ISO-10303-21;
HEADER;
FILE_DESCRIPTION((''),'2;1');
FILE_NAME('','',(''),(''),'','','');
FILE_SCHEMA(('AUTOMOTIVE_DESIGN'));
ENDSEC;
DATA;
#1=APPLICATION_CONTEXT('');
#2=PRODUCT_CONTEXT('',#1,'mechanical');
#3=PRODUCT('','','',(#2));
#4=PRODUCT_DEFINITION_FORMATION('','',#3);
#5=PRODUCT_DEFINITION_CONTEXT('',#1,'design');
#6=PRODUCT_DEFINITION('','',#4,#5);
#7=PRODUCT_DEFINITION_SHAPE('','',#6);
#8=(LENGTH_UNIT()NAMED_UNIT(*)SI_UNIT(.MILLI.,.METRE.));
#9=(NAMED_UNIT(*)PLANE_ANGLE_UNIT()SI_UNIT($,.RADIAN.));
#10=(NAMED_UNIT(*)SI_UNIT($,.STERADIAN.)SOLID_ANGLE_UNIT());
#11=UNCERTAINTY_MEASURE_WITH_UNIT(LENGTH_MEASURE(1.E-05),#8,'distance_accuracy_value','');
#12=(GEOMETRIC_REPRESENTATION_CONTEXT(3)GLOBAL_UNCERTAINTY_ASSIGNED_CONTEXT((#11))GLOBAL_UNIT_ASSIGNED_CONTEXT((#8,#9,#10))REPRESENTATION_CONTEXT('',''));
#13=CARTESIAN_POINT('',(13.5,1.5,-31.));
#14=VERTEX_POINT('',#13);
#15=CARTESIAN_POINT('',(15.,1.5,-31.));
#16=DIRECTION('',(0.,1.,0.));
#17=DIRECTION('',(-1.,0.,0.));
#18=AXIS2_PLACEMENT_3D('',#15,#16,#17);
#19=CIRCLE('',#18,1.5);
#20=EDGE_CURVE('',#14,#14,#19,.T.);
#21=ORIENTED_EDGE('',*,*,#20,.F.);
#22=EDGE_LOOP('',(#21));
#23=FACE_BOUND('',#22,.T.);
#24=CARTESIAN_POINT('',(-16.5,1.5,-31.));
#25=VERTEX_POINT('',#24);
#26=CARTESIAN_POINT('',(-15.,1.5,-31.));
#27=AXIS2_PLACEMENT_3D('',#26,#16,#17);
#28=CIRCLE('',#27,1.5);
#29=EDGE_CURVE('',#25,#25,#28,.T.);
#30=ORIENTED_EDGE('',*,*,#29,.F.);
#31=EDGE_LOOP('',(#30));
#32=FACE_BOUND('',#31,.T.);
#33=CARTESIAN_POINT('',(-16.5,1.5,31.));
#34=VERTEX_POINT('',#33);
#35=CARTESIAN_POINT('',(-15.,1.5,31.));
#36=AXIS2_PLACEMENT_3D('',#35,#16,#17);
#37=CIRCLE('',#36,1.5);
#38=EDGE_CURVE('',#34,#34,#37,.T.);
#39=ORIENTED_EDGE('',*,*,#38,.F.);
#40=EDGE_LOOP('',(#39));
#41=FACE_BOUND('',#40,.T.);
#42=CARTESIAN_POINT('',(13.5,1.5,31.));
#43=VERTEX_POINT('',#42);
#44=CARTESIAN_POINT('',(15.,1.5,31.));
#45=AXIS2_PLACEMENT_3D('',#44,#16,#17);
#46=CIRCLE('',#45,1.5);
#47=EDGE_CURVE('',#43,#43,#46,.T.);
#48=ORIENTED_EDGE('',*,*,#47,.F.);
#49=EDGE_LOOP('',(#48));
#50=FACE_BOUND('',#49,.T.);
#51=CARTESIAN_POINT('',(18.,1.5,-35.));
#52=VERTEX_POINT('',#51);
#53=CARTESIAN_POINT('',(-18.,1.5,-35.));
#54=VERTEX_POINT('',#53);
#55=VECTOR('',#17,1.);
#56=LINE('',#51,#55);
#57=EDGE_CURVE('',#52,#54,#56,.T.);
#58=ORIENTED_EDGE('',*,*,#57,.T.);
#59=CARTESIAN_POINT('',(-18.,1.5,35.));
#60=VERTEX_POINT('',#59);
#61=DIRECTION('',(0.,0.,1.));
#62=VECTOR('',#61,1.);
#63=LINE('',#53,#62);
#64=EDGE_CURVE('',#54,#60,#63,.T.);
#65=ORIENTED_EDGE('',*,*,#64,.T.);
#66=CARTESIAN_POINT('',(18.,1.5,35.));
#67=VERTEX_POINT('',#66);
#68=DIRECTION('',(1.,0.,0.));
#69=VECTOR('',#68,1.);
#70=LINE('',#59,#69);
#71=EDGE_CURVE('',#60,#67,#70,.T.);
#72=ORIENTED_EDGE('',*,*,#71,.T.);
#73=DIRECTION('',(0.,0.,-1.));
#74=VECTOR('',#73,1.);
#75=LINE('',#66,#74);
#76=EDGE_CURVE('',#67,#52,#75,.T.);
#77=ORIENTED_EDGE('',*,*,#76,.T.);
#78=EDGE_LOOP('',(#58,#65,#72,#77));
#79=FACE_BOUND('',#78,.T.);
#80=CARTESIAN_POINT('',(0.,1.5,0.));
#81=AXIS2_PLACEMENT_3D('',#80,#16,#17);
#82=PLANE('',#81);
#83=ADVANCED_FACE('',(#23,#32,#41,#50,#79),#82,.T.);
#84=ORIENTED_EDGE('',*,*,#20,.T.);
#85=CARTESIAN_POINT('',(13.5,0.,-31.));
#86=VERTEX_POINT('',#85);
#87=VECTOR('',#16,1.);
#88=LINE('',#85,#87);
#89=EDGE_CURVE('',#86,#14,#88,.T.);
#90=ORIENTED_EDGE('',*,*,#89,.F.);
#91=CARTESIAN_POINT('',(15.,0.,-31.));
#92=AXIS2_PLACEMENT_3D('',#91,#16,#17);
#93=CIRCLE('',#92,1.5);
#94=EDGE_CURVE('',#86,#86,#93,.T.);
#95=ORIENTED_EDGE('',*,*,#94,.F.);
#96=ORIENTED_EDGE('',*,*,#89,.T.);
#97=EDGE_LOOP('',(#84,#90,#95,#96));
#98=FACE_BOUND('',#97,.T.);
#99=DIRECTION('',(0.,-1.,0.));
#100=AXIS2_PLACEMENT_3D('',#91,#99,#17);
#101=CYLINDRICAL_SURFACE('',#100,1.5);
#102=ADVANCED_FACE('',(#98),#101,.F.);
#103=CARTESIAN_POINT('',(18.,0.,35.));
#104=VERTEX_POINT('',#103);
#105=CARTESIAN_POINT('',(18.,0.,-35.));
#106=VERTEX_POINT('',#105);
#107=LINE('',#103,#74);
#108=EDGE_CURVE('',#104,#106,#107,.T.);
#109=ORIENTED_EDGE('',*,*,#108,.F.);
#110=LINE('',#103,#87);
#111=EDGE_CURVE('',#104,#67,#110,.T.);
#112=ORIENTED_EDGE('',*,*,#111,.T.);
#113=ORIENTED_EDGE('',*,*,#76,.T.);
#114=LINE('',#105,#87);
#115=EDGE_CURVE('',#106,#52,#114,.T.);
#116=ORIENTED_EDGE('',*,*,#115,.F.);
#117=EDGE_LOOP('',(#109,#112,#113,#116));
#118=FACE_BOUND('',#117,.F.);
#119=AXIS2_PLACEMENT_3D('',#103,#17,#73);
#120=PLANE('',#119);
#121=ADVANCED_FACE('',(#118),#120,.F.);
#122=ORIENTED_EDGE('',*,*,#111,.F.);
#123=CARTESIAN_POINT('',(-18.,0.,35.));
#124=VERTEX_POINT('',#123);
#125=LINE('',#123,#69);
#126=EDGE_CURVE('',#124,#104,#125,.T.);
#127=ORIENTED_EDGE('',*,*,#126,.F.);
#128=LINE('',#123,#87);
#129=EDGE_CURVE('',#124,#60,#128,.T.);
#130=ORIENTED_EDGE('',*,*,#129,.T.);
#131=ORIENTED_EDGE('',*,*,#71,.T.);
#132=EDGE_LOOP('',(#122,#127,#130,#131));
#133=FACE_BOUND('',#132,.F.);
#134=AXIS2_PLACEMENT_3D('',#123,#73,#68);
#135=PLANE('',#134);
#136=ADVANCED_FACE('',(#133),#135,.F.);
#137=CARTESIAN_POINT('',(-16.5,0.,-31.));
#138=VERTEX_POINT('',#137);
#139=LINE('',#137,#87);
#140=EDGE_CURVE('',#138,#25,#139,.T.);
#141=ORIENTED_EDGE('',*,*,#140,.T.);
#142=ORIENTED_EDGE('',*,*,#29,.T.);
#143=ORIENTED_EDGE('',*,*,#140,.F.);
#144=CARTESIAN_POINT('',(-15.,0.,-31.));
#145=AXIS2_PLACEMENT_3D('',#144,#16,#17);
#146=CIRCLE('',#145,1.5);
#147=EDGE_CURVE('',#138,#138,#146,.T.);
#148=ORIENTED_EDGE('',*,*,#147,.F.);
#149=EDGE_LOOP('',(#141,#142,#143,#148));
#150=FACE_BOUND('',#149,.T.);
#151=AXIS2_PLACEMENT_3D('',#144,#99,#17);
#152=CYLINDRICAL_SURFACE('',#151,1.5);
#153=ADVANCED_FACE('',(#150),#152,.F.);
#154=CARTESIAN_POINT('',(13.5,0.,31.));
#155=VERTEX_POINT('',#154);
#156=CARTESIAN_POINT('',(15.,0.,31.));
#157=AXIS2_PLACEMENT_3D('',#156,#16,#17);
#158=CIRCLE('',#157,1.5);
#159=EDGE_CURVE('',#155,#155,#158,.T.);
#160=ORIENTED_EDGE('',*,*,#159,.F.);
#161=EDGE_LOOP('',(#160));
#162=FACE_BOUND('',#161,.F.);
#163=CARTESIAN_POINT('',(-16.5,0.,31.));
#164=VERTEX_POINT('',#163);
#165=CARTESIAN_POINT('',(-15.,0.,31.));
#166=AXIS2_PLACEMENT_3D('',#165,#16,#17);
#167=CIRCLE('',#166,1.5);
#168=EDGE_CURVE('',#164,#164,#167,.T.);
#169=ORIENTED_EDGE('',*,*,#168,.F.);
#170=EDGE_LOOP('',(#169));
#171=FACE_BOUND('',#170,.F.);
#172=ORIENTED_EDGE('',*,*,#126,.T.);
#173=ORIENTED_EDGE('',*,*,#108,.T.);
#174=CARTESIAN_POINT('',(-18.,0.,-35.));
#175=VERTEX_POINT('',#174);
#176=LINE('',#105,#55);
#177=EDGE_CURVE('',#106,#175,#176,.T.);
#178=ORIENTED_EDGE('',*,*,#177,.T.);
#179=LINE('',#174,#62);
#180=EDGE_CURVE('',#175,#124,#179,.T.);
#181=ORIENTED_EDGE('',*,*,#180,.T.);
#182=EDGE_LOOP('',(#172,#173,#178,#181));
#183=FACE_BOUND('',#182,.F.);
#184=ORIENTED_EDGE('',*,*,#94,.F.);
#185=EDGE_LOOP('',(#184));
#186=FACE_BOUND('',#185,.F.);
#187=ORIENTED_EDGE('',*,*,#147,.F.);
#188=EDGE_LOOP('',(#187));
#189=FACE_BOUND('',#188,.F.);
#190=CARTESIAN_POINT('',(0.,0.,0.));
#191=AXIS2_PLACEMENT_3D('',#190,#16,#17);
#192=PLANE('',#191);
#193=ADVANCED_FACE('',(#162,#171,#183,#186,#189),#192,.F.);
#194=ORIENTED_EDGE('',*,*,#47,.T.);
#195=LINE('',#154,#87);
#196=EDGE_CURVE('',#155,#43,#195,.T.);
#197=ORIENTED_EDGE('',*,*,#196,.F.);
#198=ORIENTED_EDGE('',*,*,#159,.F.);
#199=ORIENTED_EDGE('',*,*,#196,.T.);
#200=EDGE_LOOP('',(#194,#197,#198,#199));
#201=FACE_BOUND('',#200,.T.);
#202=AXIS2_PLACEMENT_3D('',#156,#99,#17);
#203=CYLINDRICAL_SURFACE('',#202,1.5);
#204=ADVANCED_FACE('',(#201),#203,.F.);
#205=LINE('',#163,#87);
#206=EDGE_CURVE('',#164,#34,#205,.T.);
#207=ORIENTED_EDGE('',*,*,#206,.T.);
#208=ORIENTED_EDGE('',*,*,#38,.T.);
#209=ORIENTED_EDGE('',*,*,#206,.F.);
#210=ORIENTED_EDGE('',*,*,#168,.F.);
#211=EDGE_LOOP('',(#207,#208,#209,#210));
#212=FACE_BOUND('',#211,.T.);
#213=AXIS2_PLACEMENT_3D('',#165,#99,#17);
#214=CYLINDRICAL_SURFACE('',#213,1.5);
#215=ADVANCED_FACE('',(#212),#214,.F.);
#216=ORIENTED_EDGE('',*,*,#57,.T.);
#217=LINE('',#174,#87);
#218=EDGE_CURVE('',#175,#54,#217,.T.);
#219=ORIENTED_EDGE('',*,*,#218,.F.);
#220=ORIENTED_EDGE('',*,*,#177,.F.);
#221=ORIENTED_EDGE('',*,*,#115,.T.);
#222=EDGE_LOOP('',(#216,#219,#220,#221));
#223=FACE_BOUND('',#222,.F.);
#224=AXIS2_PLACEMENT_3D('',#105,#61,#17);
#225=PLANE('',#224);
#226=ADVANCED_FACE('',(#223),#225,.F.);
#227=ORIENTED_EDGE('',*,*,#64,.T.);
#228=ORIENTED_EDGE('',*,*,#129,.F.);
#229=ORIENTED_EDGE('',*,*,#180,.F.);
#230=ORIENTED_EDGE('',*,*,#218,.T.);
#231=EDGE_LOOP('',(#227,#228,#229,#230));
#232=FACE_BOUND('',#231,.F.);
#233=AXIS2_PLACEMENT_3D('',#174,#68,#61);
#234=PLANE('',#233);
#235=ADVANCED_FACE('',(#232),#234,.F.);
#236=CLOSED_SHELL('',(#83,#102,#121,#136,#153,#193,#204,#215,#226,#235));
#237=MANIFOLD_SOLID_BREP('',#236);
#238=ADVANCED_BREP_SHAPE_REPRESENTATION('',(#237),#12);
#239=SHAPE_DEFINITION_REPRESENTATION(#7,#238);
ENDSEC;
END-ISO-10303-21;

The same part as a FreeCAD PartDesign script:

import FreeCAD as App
import Part
import Sketcher

V = App.Vector

doc = App.newDocument("Part")
params = doc.addObject("Spreadsheet::Sheet", "Params")
for row, (alias, value) in enumerate([
    ("sketch1_diameter", "3 mm"),
    ("sketch1_width", "36 mm"),
    ("sketch1_height", "70 mm"),
    ("pad1_length", "1.5 mm"),
], start=1):
    params.set(f"A{row}", alias)
    params.set(f"B{row}", "=" + value)
    params.setAlias(f"B{row}", alias)

body = doc.addObject("PartDesign::Body", "Body")

# Sketch on XZ plane
sketch1 = body.newObject("Sketcher::SketchObject", "Sketch")
sketch1.AttachmentSupport = (doc.getObject("XZ_Plane"), [""])
sketch1.MapMode = "FlatFace"
sketch1.addGeometry([
    Part.LineSegment(V(18, 35, 0), V(18, -35, 0)),  # 0
    Part.LineSegment(V(18, -35, 0), V(-18, -35, 0)),  # 1
    Part.LineSegment(V(-18, -35, 0), V(-18, 35, 0)),  # 2
    Part.LineSegment(V(-18, 35, 0), V(18, 35, 0)),  # 3
    Part.Circle(V(15, -31, 0), V(0, 0, 1), 1.5),  # 4
    Part.Circle(V(-15, -31, 0), V(0, 0, 1), 1.5),  # 5
    Part.Circle(V(15, 31, 0), V(0, 0, 1), 1.5),  # 6
    Part.Circle(V(-15, 31, 0), V(0, 0, 1), 1.5),  # 7
], False)
sketch1.addConstraint([
    Sketcher.Constraint("Coincident", 0, 2, 1, 1),
    Sketcher.Constraint("Coincident", 1, 2, 2, 1),
    Sketcher.Constraint("Coincident", 2, 2, 3, 1),
    Sketcher.Constraint("Coincident", 3, 2, 0, 1),
    Sketcher.Constraint("Vertical", 0),
    Sketcher.Constraint("Horizontal", 1),
    Sketcher.Constraint("Vertical", 2),
    Sketcher.Constraint("Horizontal", 3),
    Sketcher.Constraint("Equal", 4, 5),
    Sketcher.Constraint("Equal", 5, 6),
    Sketcher.Constraint("Equal", 6, 7),
    Sketcher.Constraint("Symmetric", 5, 3, 6, 3, -1, 1),
    Sketcher.Constraint("Symmetric", 4, 3, 7, 3, -1, 1),
    Sketcher.Constraint("Symmetric", 0, 2, 2, 2, -1, 1),
    Sketcher.Constraint("Symmetric", 4, 3, 5, 3, -2),
    Sketcher.Constraint("Diameter", 4, 3.0),
    Sketcher.Constraint("DistanceX", 1, 2, 1, 1, 36.0),
    Sketcher.Constraint("DistanceY", 0, 2, 0, 1, 70.0),
    Sketcher.Constraint("DistanceX", 5, 3, 4, 3, 30.0),
    Sketcher.Constraint("DistanceY", 4, 3, 6, 3, 62.0),
])
sketch1.setExpression("Constraints[15]", "Params.sketch1_diameter")
sketch1.setExpression("Constraints[16]", "Params.sketch1_width")
sketch1.setExpression("Constraints[17]", "Params.sketch1_height")
pad1 = body.newObject("PartDesign::Pad", "Pad")
pad1.Profile = sketch1
pad1.setExpression("Length", "Params.pad1_length")
pad1.Reversed = True

doc.recompute()
